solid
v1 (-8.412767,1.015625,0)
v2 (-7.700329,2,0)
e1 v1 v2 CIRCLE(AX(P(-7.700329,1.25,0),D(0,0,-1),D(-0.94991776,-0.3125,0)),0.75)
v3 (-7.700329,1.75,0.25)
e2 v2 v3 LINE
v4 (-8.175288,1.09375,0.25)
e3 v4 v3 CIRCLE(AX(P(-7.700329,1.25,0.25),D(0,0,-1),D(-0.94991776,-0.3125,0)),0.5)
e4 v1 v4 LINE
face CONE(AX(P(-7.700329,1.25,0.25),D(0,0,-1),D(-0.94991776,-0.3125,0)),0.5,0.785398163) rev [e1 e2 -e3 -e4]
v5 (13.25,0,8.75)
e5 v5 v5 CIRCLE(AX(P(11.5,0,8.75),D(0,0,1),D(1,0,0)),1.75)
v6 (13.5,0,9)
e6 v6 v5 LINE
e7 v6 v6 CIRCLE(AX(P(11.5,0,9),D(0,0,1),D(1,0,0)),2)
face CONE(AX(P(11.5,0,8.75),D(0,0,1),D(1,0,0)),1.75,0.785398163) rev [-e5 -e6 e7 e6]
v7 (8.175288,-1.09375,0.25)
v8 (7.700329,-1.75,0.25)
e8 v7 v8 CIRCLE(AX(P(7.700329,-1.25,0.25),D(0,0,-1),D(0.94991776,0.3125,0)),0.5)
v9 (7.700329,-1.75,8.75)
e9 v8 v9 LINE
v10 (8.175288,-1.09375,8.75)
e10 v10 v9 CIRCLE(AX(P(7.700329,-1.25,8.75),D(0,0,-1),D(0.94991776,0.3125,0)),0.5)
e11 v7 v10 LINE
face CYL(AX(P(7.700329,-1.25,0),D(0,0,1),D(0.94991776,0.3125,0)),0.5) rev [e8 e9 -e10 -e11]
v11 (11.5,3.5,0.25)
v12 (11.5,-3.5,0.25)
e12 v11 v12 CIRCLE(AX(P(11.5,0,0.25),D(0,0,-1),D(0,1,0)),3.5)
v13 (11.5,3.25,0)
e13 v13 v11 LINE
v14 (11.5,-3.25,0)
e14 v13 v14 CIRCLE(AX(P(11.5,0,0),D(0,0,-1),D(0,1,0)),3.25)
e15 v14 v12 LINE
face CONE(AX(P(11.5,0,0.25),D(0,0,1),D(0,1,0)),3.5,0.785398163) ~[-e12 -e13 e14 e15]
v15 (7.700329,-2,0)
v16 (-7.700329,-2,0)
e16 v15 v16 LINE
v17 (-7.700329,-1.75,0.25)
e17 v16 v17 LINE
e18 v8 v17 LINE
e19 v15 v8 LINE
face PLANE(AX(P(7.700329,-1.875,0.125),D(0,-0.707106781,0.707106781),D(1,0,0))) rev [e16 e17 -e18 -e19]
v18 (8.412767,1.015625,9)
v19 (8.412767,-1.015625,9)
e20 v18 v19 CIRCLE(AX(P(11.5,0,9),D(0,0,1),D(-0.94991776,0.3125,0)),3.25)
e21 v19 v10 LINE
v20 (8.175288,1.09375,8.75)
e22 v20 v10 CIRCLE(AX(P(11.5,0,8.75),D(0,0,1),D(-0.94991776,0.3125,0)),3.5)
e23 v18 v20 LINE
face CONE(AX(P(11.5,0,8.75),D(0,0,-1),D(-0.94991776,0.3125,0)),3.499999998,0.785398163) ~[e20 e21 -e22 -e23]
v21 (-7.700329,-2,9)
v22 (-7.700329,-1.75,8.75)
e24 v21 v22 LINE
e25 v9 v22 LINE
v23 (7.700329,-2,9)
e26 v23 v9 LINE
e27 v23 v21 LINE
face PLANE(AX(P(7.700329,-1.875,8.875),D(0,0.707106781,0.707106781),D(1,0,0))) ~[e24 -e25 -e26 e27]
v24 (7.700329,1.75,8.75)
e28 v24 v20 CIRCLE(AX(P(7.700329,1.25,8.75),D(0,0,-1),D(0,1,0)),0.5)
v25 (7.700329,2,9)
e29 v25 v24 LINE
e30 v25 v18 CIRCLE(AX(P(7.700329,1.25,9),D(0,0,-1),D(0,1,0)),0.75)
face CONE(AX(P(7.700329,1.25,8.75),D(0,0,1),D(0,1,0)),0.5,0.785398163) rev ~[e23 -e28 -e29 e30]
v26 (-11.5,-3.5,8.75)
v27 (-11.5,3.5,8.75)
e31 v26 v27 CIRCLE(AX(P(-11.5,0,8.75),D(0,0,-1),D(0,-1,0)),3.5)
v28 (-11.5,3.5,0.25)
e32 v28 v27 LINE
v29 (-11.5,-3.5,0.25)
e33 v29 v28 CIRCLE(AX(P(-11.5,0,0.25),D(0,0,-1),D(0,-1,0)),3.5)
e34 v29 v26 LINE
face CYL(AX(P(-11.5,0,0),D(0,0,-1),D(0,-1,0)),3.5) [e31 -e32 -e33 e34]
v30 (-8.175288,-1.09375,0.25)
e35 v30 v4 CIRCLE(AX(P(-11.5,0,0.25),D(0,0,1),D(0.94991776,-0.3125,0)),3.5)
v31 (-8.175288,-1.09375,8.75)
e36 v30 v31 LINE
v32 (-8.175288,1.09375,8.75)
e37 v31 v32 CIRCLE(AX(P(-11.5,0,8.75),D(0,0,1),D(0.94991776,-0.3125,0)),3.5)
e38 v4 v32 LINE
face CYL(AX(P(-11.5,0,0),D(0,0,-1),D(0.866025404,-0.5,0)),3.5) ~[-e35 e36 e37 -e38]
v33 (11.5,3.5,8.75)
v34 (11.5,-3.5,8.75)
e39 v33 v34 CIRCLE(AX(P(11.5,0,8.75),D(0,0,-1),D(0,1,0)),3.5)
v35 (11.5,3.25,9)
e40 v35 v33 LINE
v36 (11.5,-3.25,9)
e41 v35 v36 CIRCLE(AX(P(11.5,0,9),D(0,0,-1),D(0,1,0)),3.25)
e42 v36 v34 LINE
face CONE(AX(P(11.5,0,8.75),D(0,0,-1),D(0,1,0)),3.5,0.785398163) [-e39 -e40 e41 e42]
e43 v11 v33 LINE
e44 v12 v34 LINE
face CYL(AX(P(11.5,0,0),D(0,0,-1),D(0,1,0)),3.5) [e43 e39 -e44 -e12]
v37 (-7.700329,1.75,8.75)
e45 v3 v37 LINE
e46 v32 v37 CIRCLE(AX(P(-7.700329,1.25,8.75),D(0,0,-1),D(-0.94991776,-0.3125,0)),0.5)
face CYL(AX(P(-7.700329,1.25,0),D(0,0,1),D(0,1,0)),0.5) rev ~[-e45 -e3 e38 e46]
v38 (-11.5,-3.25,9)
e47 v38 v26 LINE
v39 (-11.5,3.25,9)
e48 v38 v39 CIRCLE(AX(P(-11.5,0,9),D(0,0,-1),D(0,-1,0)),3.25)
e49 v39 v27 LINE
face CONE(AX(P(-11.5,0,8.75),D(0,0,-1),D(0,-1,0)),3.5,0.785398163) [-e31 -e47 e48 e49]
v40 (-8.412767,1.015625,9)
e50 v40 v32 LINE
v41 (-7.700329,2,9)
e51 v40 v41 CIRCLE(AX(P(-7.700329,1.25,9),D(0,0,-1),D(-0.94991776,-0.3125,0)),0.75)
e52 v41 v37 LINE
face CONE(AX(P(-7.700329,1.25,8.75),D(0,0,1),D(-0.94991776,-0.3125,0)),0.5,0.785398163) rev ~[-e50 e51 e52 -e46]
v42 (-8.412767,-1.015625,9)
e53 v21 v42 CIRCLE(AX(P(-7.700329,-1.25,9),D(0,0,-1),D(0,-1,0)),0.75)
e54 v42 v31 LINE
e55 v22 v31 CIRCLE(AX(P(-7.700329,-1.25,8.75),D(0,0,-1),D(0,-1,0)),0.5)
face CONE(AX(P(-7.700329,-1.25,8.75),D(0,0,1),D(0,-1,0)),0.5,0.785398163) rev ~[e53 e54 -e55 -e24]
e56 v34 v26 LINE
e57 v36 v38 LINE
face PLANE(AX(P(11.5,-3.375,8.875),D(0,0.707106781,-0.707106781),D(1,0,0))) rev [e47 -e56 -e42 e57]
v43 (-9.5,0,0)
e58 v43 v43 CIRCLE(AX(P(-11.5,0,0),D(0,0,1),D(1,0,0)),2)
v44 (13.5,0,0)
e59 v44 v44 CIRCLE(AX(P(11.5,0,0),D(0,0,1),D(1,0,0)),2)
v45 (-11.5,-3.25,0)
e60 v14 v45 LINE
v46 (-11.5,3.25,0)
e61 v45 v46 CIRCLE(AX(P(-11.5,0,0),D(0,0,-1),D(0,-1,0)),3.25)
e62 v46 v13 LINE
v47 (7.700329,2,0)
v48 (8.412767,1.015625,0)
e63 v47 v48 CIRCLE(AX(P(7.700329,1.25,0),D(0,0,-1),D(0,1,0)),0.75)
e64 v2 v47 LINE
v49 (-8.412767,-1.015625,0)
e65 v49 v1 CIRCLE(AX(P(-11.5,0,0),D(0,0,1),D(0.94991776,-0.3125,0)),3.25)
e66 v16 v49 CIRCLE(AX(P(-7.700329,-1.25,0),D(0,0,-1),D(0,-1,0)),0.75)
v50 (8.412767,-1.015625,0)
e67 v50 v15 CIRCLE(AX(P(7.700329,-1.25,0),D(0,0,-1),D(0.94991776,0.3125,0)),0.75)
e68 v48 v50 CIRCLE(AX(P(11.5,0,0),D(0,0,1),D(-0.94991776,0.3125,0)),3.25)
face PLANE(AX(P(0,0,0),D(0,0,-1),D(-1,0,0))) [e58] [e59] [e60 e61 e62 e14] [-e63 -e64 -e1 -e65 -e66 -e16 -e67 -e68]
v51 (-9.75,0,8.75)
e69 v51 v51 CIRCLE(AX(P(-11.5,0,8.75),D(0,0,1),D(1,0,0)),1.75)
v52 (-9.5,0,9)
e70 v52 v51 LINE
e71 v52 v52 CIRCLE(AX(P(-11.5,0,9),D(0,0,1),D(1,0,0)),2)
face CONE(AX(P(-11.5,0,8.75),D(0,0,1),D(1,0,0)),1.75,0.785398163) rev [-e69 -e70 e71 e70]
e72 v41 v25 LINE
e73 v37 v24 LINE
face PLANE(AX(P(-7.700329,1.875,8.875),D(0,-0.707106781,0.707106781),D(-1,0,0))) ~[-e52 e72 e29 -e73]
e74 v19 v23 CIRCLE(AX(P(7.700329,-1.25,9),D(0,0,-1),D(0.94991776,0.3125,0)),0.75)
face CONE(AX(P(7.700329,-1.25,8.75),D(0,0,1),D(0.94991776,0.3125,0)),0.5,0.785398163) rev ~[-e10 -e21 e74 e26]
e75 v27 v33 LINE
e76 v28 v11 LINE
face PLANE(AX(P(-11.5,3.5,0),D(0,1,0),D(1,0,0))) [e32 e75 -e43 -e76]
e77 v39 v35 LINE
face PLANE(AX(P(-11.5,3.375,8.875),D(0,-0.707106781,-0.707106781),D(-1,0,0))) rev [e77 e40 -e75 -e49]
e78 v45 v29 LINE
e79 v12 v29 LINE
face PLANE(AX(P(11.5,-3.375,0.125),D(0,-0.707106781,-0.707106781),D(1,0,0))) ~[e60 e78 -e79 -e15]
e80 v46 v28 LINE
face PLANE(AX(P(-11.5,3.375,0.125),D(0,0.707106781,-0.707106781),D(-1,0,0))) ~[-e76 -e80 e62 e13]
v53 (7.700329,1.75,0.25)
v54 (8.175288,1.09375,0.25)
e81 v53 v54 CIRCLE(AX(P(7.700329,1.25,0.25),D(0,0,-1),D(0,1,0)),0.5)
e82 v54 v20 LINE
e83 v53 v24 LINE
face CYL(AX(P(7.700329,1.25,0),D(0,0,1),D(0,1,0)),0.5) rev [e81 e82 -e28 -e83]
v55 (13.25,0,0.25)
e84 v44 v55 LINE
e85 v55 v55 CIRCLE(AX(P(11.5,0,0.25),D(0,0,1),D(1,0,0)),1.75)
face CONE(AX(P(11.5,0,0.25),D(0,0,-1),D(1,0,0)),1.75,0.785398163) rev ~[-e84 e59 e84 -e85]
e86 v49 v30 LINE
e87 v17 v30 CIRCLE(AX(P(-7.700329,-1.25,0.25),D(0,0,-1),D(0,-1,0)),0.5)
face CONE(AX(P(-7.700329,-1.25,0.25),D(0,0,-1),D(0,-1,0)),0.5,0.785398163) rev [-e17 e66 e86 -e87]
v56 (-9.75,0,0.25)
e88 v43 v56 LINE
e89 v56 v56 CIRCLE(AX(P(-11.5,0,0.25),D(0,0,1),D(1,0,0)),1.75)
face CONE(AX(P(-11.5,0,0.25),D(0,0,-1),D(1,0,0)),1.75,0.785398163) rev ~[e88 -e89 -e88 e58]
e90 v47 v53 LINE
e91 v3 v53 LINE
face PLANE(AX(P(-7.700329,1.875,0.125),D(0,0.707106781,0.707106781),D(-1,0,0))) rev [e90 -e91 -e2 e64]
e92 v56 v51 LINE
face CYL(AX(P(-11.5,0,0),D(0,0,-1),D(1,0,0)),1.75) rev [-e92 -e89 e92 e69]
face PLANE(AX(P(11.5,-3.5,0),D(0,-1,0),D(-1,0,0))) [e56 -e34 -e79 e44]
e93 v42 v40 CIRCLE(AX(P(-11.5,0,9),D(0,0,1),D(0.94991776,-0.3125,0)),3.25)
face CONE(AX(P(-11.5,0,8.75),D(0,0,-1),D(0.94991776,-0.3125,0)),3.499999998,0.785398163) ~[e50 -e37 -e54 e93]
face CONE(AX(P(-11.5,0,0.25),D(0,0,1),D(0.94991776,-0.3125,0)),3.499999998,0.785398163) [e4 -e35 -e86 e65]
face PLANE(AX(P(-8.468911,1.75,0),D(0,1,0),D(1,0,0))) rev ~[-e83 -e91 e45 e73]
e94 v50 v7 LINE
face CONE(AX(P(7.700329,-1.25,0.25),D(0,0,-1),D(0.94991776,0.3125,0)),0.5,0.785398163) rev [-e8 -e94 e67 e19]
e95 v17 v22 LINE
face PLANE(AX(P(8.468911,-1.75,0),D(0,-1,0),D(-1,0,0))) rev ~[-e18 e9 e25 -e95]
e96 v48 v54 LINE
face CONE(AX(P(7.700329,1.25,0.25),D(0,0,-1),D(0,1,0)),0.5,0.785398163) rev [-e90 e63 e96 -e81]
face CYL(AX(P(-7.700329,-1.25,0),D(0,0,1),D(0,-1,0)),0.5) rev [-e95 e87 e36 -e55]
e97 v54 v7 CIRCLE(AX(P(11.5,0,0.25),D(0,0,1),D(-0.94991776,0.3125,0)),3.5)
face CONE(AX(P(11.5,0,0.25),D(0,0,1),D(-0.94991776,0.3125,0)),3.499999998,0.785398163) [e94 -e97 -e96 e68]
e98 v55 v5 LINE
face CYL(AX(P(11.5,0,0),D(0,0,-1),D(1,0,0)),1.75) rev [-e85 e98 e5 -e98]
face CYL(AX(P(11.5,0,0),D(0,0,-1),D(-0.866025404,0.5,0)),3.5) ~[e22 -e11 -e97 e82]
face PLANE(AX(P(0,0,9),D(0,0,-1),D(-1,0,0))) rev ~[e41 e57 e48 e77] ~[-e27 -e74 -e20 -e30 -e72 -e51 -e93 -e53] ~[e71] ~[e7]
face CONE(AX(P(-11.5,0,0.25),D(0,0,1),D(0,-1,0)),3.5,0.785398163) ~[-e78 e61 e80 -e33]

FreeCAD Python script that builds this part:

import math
import FreeCAD as App
import Part
import Sketcher

V = App.Vector


def edges_at(feature, points):
    """Names of the edges that pass closest to the given points."""
    edges = feature.Shape.Edges
    near = lambda p: min(range(len(edges)), key=lambda i: edges[i].distToShape(Part.Vertex(*p))[0])
    return sorted({f"Edge{near(p) + 1}" for p in points})

doc = App.newDocument("Part")
body = doc.addObject("PartDesign::Body", "Body")

# Sketch on XY plane
sketch1 = doc.addObject("Sketcher::SketchObject", "Sketch")
body.addObject(sketch1)
sketch1.AttachmentSupport = (doc.XY_Plane, [""])
sketch1.MapMode = "FlatFace"
sketch1.addGeometry(Part.LineSegment(V(11.5, 3.5, 0), V(-11.5, 3.5, 0)), False)
sketch1.addGeometry(Part.ArcOfCircle(Part.Circle(V(-11.5, 0, 0), V(0, 0, 1), 3.5), math.radians(90), math.radians(270)), False)
sketch1.addGeometry(Part.LineSegment(V(-11.5, -3.5, 0), V(11.5, -3.5, 0)), False)
sketch1.addGeometry(Part.ArcOfCircle(Part.Circle(V(11.5, 0, 0), V(0, 0, 1), 3.5), math.radians(-90), math.radians(90)), False)
sketch1.addGeometry(Part.Circle(V(11.5, 0, 0), V(0, 0, 1), 1.8), False)
sketch1.addGeometry(Part.LineSegment(V(-8.5, 1.8, 0), V(8.5, 1.8, 0)), False)
sketch1.addGeometry(Part.ArcOfCircle(Part.Circle(V(11.5, 0, 0), V(0, 0, 1), 3.5), math.radians(150), math.radians(210)), False)
sketch1.addGeometry(Part.LineSegment(V(8.5, -1.8, 0), V(-8.5, -1.8, 0)), False)
sketch1.addGeometry(Part.ArcOfCircle(Part.Circle(V(-11.5, 0, 0), V(0, 0, 1), 3.5), math.radians(-30), math.radians(30)), False)
sketch1.addGeometry(Part.Circle(V(-11.5, 0, 0), V(0, 0, 1), 1.8), False)
sketch1.addConstraint(Sketcher.Constraint("Tangent", 0, 2, 1, 1))
sketch1.addConstraint(Sketcher.Constraint("Tangent", 1, 2, 2, 1))
sketch1.addConstraint(Sketcher.Constraint("Tangent", 2, 2, 3, 1))
sketch1.addConstraint(Sketcher.Constraint("Tangent", 3, 2, 0, 1))
sketch1.addConstraint(Sketcher.Constraint("Coincident", 5, 2, 6, 1))
sketch1.addConstraint(Sketcher.Constraint("Coincident", 6, 2, 7, 1))
sketch1.addConstraint(Sketcher.Constraint("Coincident", 7, 2, 8, 1))
sketch1.addConstraint(Sketcher.Constraint("Coincident", 8, 2, 5, 1))
sketch1.addConstraint(Sketcher.Constraint("Horizontal", 0))
sketch1.addConstraint(Sketcher.Constraint("Horizontal", 2))
sketch1.addConstraint(Sketcher.Constraint("Horizontal", 5))
sketch1.addConstraint(Sketcher.Constraint("Horizontal", 7))
sketch1.addConstraint(Sketcher.Constraint("Coincident", 4, 3, 3, 3))
sketch1.addConstraint(Sketcher.Constraint("Coincident", 6, 3, 3, 3))
sketch1.addConstraint(Sketcher.Constraint("Coincident", 8, 3, 1, 3))
sketch1.addConstraint(Sketcher.Constraint("Coincident", 9, 3, 1, 3))
sketch1.addConstraint(Sketcher.Constraint("Equal", 3, 6))
sketch1.addConstraint(Sketcher.Constraint("Equal", 6, 8))
sketch1.addConstraint(Sketcher.Constraint("Equal", 4, 9))
sketch1.addConstraint(Sketcher.Constraint("Symmetric", 1, 3, 3, 3, -1, 1))
sketch1.addConstraint(Sketcher.Constraint("Vertical", 5, 2, 6, 2))
sketch1.addConstraint(Sketcher.Constraint("Diameter", 4, 3.5))
sketch1.addConstraint(Sketcher.Constraint("Radius", 1, 3.5))
sketch1.addConstraint(Sketcher.Constraint("DistanceX", 0, 2, 0, 1, 23.0))
sketch1.addConstraint(Sketcher.Constraint("DistanceY", 6, 2, 5, 2, 3.5))
pad1 = doc.addObject("PartDesign::Pad", "Pad")
body.addObject(pad1)
pad1.Profile = sketch1
pad1.Length = 9
doc.recompute()

fillet = doc.addObject("PartDesign::Fillet", "Fillet")
body.addObject(fillet)
fillet.Base = (pad1, edges_at(pad1, [
    (-8.469, 1.75, 4.5),
    (-8.469, -1.75, 4.5),
    (8.469, -1.75, 4.5),
    (8.469, 1.75, 4.5),
]))
fillet.Radius = 0.5
doc.recompute()

chamfer = doc.addObject("PartDesign::Chamfer", "Chamfer")
body.addObject(chamfer)
chamfer.Base = (fillet, edges_at(fillet, [
    (9.75, 0, 0),
    (9.75, 0, 9),
    (15, 0, 9),
    (-13.25, 0, 0),
    (-13.25, 0, 9),
    (0, 3.5, 9),
    (0, -1.75, 0),
    (0, -1.75, 9),
    (8, 0, 0),
    (8, 0, 9),
    (0, 1.75, 0),
    (0, 1.75, 9),
    (-8, 0, 0),
    (-8, 0, 9),
    (8.105, -1.543, 0),
    (8.105, -1.543, 9),
    (8.105, 1.543, 0),
    (8.105, 1.543, 9),
    (-8.105, 1.543, 0),
    (-8.105, 1.543, 9),
    (-8.105, -1.543, 0),
    (-8.105, -1.543, 9),
    (-15, 0, 9),
    (0, 3.5, 0),
    (15, 0, 0),
    (0, -3.5, 0),
    (-15, 0, 0),
    (0, -3.5, 9),
]))
chamfer.Size = 0.25

doc.recompute()
